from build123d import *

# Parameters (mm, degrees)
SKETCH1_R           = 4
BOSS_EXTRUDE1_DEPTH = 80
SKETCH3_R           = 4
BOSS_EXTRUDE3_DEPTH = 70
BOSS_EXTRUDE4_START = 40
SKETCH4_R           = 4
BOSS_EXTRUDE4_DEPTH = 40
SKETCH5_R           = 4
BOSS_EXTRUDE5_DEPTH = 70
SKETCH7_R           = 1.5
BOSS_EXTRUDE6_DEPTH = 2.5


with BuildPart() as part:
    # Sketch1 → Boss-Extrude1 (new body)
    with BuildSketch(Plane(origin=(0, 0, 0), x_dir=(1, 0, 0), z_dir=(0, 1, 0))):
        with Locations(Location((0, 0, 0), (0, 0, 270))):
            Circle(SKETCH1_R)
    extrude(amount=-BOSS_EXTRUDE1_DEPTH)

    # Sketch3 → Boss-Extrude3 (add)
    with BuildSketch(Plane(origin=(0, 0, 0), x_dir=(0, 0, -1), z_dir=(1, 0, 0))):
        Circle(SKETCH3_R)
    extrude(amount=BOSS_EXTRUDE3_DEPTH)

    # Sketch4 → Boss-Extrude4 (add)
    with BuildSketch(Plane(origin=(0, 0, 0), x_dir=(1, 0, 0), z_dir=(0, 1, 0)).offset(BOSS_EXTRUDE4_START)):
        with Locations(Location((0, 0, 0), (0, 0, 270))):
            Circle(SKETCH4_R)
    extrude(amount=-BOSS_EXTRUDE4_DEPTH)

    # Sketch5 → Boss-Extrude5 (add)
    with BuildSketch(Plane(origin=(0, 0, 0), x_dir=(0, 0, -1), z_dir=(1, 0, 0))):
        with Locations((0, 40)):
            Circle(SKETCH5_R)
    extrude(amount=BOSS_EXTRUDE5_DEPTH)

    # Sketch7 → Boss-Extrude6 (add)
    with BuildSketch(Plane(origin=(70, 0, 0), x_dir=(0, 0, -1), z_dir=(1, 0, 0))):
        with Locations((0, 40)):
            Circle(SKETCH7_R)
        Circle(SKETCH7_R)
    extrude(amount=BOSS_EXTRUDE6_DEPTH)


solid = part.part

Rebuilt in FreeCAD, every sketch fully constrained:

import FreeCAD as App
import Part
import Sketcher
from FreeCAD import Vector
Q = App.Units.Quantity

doc = App.newDocument("Part")
body = doc.addObject("PartDesign::Body", "Body")

# Sketch on XZ plane
sketch1 = body.newObject("Sketcher::SketchObject", "Sketch")
sketch1.AttachmentSupport = (doc.getObject("XZ_Plane"), [""])
sketch1.MapMode = "FlatFace"
sketch1.addGeometry(Part.Circle(Vector(0, 0, 0), Vector(0, 0, 1), 4), False)
sketch1.addConstraint(Sketcher.Constraint("Coincident", 0, 3, -1, 1))
sketch1.addConstraint(Sketcher.Constraint("Diameter", 0, Q("8 mm")))
pad1 = body.newObject("PartDesign::Pad", "Pad")
pad1.Profile = sketch1
pad1.Length = 80

# Sketch on YZ plane
sketch2 = body.newObject("Sketcher::SketchObject", "Sketch001")
sketch2.AttachmentSupport = (doc.getObject("YZ_Plane"), [""])
sketch2.MapMode = "FlatFace"
sketch2.addGeometry(Part.Circle(Vector(0, 0, 0), Vector(0, 0, 1), 4), False)
sketch2.addConstraint(Sketcher.Constraint("Coincident", 0, 3, -1, 1))
sketch2.addConstraint(Sketcher.Constraint("Diameter", 0, Q("8 mm")))
pad2 = body.newObject("PartDesign::Pad", "Pad001")
pad2.Profile = sketch2
pad2.Length = 70

# Sketch on XZ plane
sketch3 = body.newObject("Sketcher::SketchObject", "Sketch002")
sketch3.AttachmentSupport = (doc.getObject("XZ_Plane"), [""])
sketch3.MapMode = "FlatFace"
sketch3.AttachmentOffset = App.Placement(Vector(0, 0, -40), App.Rotation())
sketch3.addGeometry(Part.Circle(Vector(0, 0, 0), Vector(0, 0, 1), 4), False)
sketch3.addConstraint(Sketcher.Constraint("Coincident", 0, 3, -1, 1))
sketch3.addConstraint(Sketcher.Constraint("Diameter", 0, Q("8 mm")))
pad3 = body.newObject("PartDesign::Pad", "Pad002")
pad3.Profile = sketch3
pad3.Length = 40

# Sketch on YZ plane
sketch4 = body.newObject("Sketcher::SketchObject", "Sketch003")
sketch4.AttachmentSupport = (doc.getObject("YZ_Plane"), [""])
sketch4.MapMode = "FlatFace"
sketch4.addGeometry(Part.Circle(Vector(40, 0, 0), Vector(0, 0, 1), 4), False)
sketch4.addConstraint(Sketcher.Constraint("PointOnObject", 0, 3, -1))
sketch4.addConstraint(Sketcher.Constraint("Diameter", 0, Q("8 mm")))
sketch4.addConstraint(Sketcher.Constraint("DistanceX", -1, 1, 0, 3, Q("40 mm")))
pad4 = body.newObject("PartDesign::Pad", "Pad003")
pad4.Profile = sketch4
pad4.Length = 70

# Sketch on YZ plane
sketch5 = body.newObject("Sketcher::SketchObject", "Sketch004")
sketch5.AttachmentSupport = (doc.getObject("YZ_Plane"), [""])
sketch5.MapMode = "FlatFace"
sketch5.AttachmentOffset = App.Placement(Vector(0, 0, 70), App.Rotation())
sketch5.addGeometry(Part.Circle(Vector(40, 0, 0), Vector(0, 0, 1), 1.5), False)
sketch5.addGeometry(Part.Circle(Vector(0, 0, 0), Vector(0, 0, 1), 1.5), False)
sketch5.addConstraint(Sketcher.Constraint("Coincident", 1, 3, -1, 1))
sketch5.addConstraint(Sketcher.Constraint("Equal", 0, 1))
sketch5.addConstraint(Sketcher.Constraint("PointOnObject", 0, 3, -1))
sketch5.addConstraint(Sketcher.Constraint("Diameter", 0, Q("3 mm")))
sketch5.addConstraint(Sketcher.Constraint("DistanceX", -1, 1, 0, 3, Q("40 mm")))
pad5 = body.newObject("PartDesign::Pad", "Pad004")
pad5.Profile = sketch5
pad5.Length = 2.5

doc.recompute()
